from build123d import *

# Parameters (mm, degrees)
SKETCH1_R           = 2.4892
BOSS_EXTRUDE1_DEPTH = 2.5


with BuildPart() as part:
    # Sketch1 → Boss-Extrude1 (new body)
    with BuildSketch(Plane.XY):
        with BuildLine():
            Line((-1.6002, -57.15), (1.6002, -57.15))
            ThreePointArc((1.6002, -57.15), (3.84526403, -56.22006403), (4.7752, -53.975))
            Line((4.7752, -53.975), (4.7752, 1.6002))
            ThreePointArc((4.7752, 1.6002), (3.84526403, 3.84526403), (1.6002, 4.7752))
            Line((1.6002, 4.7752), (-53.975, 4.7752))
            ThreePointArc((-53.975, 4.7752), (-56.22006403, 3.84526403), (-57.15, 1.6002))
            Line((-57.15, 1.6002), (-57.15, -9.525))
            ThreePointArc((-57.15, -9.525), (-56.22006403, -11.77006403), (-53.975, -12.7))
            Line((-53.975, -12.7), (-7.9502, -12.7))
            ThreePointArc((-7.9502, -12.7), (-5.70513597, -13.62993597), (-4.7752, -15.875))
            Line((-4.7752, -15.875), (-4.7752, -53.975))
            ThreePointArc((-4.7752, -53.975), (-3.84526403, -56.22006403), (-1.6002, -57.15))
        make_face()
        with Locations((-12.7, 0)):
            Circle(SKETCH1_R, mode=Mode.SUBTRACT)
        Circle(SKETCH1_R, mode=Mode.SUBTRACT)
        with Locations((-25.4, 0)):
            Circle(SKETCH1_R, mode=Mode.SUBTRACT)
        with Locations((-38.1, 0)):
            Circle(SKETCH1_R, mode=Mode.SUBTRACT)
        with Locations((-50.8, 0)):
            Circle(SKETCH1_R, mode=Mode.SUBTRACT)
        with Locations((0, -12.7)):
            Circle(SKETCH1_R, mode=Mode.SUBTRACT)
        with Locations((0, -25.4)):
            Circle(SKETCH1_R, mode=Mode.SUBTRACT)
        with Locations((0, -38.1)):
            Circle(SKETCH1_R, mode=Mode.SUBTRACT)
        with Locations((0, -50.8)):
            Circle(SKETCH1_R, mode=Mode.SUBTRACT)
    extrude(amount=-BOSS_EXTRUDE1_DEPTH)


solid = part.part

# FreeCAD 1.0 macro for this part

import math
import FreeCAD as App
import Part
import Sketcher
Q = App.Units.Quantity

doc = App.newDocument("Part")
params = doc.addObject("Spreadsheet::Sheet", "Params")
for row, (alias, value) in enumerate([
    ("sketch1_diameter", "0.196 in"),
    ("sketch1_height", "1.5 in"),
    ("sketch1_radius", "0.125 in"),
    ("sketch1_width", "0.126 in"),
    ("sketch1_width2", "2.188 in"),
    ("pad1_length", "2.5 mm"),
], start=1):
    params.set(f"A{row}", alias)
    params.set(f"B{row}", "=" + value)
    params.setAlias(f"B{row}", alias)

body = doc.addObject("PartDesign::Body", "Body")

# Sketch on XY plane
sketch1 = doc.addObject("Sketcher::SketchObject", "Sketch")
body.addObject(sketch1)
sketch1.AttachmentSupport = (doc.XY_Plane, [""])
sketch1.MapMode = "FlatFace"
sketch1.addGeometry(Part.LineSegment(App.Vector(-1.6, -57.1, 0), App.Vector(1.6, -57.1, 0)), False)
sketch1.addGeometry(Part.ArcOfCircle(Part.Circle(App.Vector(1.6, -54, 0), App.Vector(0, 0, 1), 3.2), math.radians(-90), math.radians(0)), False)
sketch1.addGeometry(Part.LineSegment(App.Vector(4.8, -54, 0), App.Vector(4.8, 1.6, 0)), False)
sketch1.addGeometry(Part.ArcOfCircle(Part.Circle(App.Vector(1.6, 1.6, 0), App.Vector(0, 0, 1), 3.2), math.radians(0), math.radians(90)), False)
sketch1.addGeometry(Part.LineSegment(App.Vector(1.6, 4.8, 0), App.Vector(-54, 4.8, 0)), False)
sketch1.addGeometry(Part.ArcOfCircle(Part.Circle(App.Vector(-54, 1.6, 0), App.Vector(0, 0, 1), 3.2), math.radians(90), math.radians(180)), False)
sketch1.addGeometry(Part.LineSegment(App.Vector(-57.1, 1.6, 0), App.Vector(-57.1, -9.5, 0)), False)
sketch1.addGeometry(Part.ArcOfCircle(Part.Circle(App.Vector(-54, -9.5, 0), App.Vector(0, 0, 1), 3.2), math.radians(-180), math.radians(-90)), False)
sketch1.addGeometry(Part.LineSegment(App.Vector(-54, -12.7, 0), App.Vector(-8, -12.7, 0)), False)
sketch1.addGeometry(Part.ArcOfCircle(Part.Circle(App.Vector(-8, -15.9, 0), App.Vector(0, 0, 1), 3.2), math.radians(0), math.radians(90)), False)
sketch1.addGeometry(Part.LineSegment(App.Vector(-4.8, -15.9, 0), App.Vector(-4.8, -54, 0)), False)
sketch1.addGeometry(Part.ArcOfCircle(Part.Circle(App.Vector(-1.6, -54, 0), App.Vector(0, 0, 1), 3.2), math.radians(-180), math.radians(-90)), False)
sketch1.addGeometry(Part.Circle(App.Vector(0, -50.8, 0), App.Vector(0, 0, 1), 2.5), False)
sketch1.addGeometry(Part.Circle(App.Vector(0, -38.1, 0), App.Vector(0, 0, 1), 2.5), False)
sketch1.addGeometry(Part.Circle(App.Vector(-50.8, 0, 0), App.Vector(0, 0, 1), 2.5), False)
sketch1.addGeometry(Part.Circle(App.Vector(-38.1, 0, 0), App.Vector(0, 0, 1), 2.5), False)
sketch1.addGeometry(Part.Circle(App.Vector(-25.4, 0, 0), App.Vector(0, 0, 1), 2.5), False)
sketch1.addGeometry(Part.Circle(App.Vector(0, -25.4, 0), App.Vector(0, 0, 1), 2.5), False)
sketch1.addGeometry(Part.Circle(App.Vector(0, -12.7, 0), App.Vector(0, 0, 1), 2.5), False)
sketch1.addGeometry(Part.Circle(App.Vector(-12.7, 0, 0), App.Vector(0, 0, 1), 2.5), False)
sketch1.addGeometry(Part.Circle(App.Vector(0, 0, 0), App.Vector(0, 0, 1), 2.5), False)
sketch1.addConstraint(Sketcher.Constraint("Tangent", 0, 2, 1, 1))
sketch1.addConstraint(Sketcher.Constraint("Tangent", 1, 2, 2, 1))
sketch1.addConstraint(Sketcher.Constraint("Tangent", 2, 2, 3, 1))
sketch1.addConstraint(Sketcher.Constraint("Tangent", 3, 2, 4, 1))
sketch1.addConstraint(Sketcher.Constraint("Tangent", 4, 2, 5, 1))
sketch1.addConstraint(Sketcher.Constraint("Tangent", 5, 2, 6, 1))
sketch1.addConstraint(Sketcher.Constraint("Tangent", 6, 2, 7, 1))
sketch1.addConstraint(Sketcher.Constraint("Tangent", 7, 2, 8, 1))
sketch1.addConstraint(Sketcher.Constraint("Tangent", 8, 2, 9, 2))
sketch1.addConstraint(Sketcher.Constraint("Tangent", 9, 1, 10, 1))
sketch1.addConstraint(Sketcher.Constraint("Tangent", 10, 2, 11, 1))
sketch1.addConstraint(Sketcher.Constraint("Tangent", 11, 2, 0, 1))
sketch1.addConstraint(Sketcher.Constraint("Horizontal", 0))
sketch1.addConstraint(Sketcher.Constraint("Vertical", 2))
sketch1.addConstraint(Sketcher.Constraint("Horizontal", 4))
sketch1.addConstraint(Sketcher.Constraint("Vertical", 6))
sketch1.addConstraint(Sketcher.Constraint("Horizontal", 8))
sketch1.addConstraint(Sketcher.Constraint("Vertical", 10))
sketch1.addConstraint(Sketcher.Constraint("Coincident", 20, 3, -1, 1))
sketch1.addConstraint(Sketcher.Constraint("Equal", 1, 3))
sketch1.addConstraint(Sketcher.Constraint("Equal", 3, 5))
sketch1.addConstraint(Sketcher.Constraint("Equal", 5, 7))
sketch1.addConstraint(Sketcher.Constraint("Equal", 7, 9))
sketch1.addConstraint(Sketcher.Constraint("Equal", 9, 11))
sketch1.addConstraint(Sketcher.Constraint("Equal", 12, 13))
sketch1.addConstraint(Sketcher.Constraint("Equal", 13, 14))
sketch1.addConstraint(Sketcher.Constraint("Equal", 14, 15))
sketch1.addConstraint(Sketcher.Constraint("Equal", 15, 16))
sketch1.addConstraint(Sketcher.Constraint("Equal", 16, 17))
sketch1.addConstraint(Sketcher.Constraint("Equal", 17, 18))
sketch1.addConstraint(Sketcher.Constraint("Equal", 18, 19))
sketch1.addConstraint(Sketcher.Constraint("Equal", 19, 20))
sketch1.addConstraint(Sketcher.Constraint("PointOnObject", 12, 3, -2))
sketch1.addConstraint(Sketcher.Constraint("PointOnObject", 13, 3, -2))
sketch1.addConstraint(Sketcher.Constraint("PointOnObject", 14, 3, -1))
sketch1.addConstraint(Sketcher.Constraint("PointOnObject", 15, 3, -1))
sketch1.addConstraint(Sketcher.Constraint("PointOnObject", 16, 3, -1))
sketch1.addConstraint(Sketcher.Constraint("PointOnObject", 17, 3, -2))
sketch1.addConstraint(Sketcher.Constraint("PointOnObject", 18, 3, -2))
sketch1.addConstraint(Sketcher.Constraint("PointOnObject", 19, 3, -1))
sketch1.addConstraint(Sketcher.Constraint("Horizontal", 18, 3, 7, 2))
sketch1.addConstraint(Sketcher.Constraint("Equal", 4, 2))
sketch1.addConstraint(Sketcher.Constraint("Diameter", 12, Q("0.196 in")))
sketch1.addConstraint(Sketcher.Constraint("DistanceY", 10, 2, 10, 1, Q("1.5 in")))
sketch1.addConstraint(Sketcher.Constraint("DistanceY", 12, 3, -1, 1, Q("2 in")))
sketch1.addConstraint(Sketcher.Constraint("DistanceX", 14, 3, -1, 1, Q("2 in")))
sketch1.addConstraint(Sketcher.Constraint("DistanceX", 16, 3, -1, 1, Q("1 in")))
sketch1.addConstraint(Sketcher.Constraint("DistanceY", 17, 3, -1, 1, Q("1 in")))
sketch1.addConstraint(Sketcher.Constraint("Radius", 1, Q("0.125 in")))
sketch1.addConstraint(Sketcher.Constraint("DistanceY", 13, 3, 18, 3, Q("1 in")))
sketch1.addConstraint(Sketcher.Constraint("DistanceX", 15, 3, 19, 3, Q("1 in")))
sketch1.addConstraint(Sketcher.Constraint("DistanceY", 13, 3, -1, 1, Q("1.5 in")))
sketch1.addConstraint(Sketcher.Constraint("DistanceX", 15, 3, -1, 1, Q("1.5 in")))
sketch1.addConstraint(Sketcher.Constraint("DistanceX", 0, 1, 0, 2, Q("0.126 in")))
sketch1.addConstraint(Sketcher.Constraint("DistanceX", 4, 2, 4, 1, Q("2.188 in")))
sketch1.addConstraint(Sketcher.Constraint("DistanceX", 5, 2, -1, 1, Q("2.25 in")))
sketch1.setExpression("Constraints[42]", "Params.sketch1_diameter")
sketch1.setExpression("Constraints[43]", "Params.sketch1_height")
sketch1.setExpression("Constraints[48]", "Params.sketch1_radius")
sketch1.setExpression("Constraints[53]", "Params.sketch1_width")
sketch1.setExpression("Constraints[54]", "Params.sketch1_width2")
pad1 = doc.addObject("PartDesign::Pad", "Pad")
body.addObject(pad1)
pad1.Profile = sketch1
pad1.setExpression("Length", "Params.pad1_length")
pad1.Reversed = True

doc.recompute()
